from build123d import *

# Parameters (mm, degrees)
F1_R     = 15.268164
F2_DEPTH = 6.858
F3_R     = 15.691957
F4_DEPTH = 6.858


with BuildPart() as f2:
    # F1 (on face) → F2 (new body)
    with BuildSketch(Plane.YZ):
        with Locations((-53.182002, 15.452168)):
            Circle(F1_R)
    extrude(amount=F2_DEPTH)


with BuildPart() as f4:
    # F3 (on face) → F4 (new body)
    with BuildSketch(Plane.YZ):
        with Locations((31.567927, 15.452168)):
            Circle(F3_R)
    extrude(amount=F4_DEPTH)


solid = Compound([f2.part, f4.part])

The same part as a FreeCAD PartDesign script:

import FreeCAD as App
import Part
import Sketcher
Q = App.Units.Quantity

doc = App.newDocument("Part")
body = doc.addObject("PartDesign::Body", "Body")

# Sketch on YZ plane
sketch1 = body.newObject("Sketcher::SketchObject", "Sketch")
sketch1.AttachmentSupport = (doc.getObject("YZ_Plane"), [""])
sketch1.MapMode = "FlatFace"
sketch1.addGeometry(Part.Circle(App.Vector(-53.182002, 15.452168, 0), App.Vector(0, 0, 1), 15.268164), False)
sketch1.addConstraint([
    Sketcher.Constraint("Diameter", 0, 30.536328),
    Sketcher.Constraint("DistanceX", 0, 3, -1, 1, 53.182002),
    Sketcher.Constraint("DistanceY", -1, 1, 0, 3, 15.452168),
])
pad1 = body.newObject("PartDesign::Pad", "Pad")
pad1.Profile = sketch1
pad1.Length = Q("0.27 in")
body2 = doc.addObject("PartDesign::Body", "Body001")

# Sketch on YZ plane
sketch2 = body2.newObject("Sketcher::SketchObject", "Sketch001")
sketch2.AttachmentSupport = (doc.getObject("YZ_Plane001"), [""])
sketch2.MapMode = "FlatFace"
sketch2.addGeometry(Part.Circle(App.Vector(31.567927, 15.452168, 0), App.Vector(0, 0, 1), 15.691957), False)
sketch2.addConstraint([
    Sketcher.Constraint("Diameter", 0, 31.383914),
    Sketcher.Constraint("DistanceX", -1, 1, 0, 3, 31.567927),
    Sketcher.Constraint("DistanceY", -1, 1, 0, 3, 15.452168),
])
pad2 = body2.newObject("PartDesign::Pad", "Pad001")
pad2.Profile = sketch2
pad2.Length = Q("0.27 in")

doc.recompute()
